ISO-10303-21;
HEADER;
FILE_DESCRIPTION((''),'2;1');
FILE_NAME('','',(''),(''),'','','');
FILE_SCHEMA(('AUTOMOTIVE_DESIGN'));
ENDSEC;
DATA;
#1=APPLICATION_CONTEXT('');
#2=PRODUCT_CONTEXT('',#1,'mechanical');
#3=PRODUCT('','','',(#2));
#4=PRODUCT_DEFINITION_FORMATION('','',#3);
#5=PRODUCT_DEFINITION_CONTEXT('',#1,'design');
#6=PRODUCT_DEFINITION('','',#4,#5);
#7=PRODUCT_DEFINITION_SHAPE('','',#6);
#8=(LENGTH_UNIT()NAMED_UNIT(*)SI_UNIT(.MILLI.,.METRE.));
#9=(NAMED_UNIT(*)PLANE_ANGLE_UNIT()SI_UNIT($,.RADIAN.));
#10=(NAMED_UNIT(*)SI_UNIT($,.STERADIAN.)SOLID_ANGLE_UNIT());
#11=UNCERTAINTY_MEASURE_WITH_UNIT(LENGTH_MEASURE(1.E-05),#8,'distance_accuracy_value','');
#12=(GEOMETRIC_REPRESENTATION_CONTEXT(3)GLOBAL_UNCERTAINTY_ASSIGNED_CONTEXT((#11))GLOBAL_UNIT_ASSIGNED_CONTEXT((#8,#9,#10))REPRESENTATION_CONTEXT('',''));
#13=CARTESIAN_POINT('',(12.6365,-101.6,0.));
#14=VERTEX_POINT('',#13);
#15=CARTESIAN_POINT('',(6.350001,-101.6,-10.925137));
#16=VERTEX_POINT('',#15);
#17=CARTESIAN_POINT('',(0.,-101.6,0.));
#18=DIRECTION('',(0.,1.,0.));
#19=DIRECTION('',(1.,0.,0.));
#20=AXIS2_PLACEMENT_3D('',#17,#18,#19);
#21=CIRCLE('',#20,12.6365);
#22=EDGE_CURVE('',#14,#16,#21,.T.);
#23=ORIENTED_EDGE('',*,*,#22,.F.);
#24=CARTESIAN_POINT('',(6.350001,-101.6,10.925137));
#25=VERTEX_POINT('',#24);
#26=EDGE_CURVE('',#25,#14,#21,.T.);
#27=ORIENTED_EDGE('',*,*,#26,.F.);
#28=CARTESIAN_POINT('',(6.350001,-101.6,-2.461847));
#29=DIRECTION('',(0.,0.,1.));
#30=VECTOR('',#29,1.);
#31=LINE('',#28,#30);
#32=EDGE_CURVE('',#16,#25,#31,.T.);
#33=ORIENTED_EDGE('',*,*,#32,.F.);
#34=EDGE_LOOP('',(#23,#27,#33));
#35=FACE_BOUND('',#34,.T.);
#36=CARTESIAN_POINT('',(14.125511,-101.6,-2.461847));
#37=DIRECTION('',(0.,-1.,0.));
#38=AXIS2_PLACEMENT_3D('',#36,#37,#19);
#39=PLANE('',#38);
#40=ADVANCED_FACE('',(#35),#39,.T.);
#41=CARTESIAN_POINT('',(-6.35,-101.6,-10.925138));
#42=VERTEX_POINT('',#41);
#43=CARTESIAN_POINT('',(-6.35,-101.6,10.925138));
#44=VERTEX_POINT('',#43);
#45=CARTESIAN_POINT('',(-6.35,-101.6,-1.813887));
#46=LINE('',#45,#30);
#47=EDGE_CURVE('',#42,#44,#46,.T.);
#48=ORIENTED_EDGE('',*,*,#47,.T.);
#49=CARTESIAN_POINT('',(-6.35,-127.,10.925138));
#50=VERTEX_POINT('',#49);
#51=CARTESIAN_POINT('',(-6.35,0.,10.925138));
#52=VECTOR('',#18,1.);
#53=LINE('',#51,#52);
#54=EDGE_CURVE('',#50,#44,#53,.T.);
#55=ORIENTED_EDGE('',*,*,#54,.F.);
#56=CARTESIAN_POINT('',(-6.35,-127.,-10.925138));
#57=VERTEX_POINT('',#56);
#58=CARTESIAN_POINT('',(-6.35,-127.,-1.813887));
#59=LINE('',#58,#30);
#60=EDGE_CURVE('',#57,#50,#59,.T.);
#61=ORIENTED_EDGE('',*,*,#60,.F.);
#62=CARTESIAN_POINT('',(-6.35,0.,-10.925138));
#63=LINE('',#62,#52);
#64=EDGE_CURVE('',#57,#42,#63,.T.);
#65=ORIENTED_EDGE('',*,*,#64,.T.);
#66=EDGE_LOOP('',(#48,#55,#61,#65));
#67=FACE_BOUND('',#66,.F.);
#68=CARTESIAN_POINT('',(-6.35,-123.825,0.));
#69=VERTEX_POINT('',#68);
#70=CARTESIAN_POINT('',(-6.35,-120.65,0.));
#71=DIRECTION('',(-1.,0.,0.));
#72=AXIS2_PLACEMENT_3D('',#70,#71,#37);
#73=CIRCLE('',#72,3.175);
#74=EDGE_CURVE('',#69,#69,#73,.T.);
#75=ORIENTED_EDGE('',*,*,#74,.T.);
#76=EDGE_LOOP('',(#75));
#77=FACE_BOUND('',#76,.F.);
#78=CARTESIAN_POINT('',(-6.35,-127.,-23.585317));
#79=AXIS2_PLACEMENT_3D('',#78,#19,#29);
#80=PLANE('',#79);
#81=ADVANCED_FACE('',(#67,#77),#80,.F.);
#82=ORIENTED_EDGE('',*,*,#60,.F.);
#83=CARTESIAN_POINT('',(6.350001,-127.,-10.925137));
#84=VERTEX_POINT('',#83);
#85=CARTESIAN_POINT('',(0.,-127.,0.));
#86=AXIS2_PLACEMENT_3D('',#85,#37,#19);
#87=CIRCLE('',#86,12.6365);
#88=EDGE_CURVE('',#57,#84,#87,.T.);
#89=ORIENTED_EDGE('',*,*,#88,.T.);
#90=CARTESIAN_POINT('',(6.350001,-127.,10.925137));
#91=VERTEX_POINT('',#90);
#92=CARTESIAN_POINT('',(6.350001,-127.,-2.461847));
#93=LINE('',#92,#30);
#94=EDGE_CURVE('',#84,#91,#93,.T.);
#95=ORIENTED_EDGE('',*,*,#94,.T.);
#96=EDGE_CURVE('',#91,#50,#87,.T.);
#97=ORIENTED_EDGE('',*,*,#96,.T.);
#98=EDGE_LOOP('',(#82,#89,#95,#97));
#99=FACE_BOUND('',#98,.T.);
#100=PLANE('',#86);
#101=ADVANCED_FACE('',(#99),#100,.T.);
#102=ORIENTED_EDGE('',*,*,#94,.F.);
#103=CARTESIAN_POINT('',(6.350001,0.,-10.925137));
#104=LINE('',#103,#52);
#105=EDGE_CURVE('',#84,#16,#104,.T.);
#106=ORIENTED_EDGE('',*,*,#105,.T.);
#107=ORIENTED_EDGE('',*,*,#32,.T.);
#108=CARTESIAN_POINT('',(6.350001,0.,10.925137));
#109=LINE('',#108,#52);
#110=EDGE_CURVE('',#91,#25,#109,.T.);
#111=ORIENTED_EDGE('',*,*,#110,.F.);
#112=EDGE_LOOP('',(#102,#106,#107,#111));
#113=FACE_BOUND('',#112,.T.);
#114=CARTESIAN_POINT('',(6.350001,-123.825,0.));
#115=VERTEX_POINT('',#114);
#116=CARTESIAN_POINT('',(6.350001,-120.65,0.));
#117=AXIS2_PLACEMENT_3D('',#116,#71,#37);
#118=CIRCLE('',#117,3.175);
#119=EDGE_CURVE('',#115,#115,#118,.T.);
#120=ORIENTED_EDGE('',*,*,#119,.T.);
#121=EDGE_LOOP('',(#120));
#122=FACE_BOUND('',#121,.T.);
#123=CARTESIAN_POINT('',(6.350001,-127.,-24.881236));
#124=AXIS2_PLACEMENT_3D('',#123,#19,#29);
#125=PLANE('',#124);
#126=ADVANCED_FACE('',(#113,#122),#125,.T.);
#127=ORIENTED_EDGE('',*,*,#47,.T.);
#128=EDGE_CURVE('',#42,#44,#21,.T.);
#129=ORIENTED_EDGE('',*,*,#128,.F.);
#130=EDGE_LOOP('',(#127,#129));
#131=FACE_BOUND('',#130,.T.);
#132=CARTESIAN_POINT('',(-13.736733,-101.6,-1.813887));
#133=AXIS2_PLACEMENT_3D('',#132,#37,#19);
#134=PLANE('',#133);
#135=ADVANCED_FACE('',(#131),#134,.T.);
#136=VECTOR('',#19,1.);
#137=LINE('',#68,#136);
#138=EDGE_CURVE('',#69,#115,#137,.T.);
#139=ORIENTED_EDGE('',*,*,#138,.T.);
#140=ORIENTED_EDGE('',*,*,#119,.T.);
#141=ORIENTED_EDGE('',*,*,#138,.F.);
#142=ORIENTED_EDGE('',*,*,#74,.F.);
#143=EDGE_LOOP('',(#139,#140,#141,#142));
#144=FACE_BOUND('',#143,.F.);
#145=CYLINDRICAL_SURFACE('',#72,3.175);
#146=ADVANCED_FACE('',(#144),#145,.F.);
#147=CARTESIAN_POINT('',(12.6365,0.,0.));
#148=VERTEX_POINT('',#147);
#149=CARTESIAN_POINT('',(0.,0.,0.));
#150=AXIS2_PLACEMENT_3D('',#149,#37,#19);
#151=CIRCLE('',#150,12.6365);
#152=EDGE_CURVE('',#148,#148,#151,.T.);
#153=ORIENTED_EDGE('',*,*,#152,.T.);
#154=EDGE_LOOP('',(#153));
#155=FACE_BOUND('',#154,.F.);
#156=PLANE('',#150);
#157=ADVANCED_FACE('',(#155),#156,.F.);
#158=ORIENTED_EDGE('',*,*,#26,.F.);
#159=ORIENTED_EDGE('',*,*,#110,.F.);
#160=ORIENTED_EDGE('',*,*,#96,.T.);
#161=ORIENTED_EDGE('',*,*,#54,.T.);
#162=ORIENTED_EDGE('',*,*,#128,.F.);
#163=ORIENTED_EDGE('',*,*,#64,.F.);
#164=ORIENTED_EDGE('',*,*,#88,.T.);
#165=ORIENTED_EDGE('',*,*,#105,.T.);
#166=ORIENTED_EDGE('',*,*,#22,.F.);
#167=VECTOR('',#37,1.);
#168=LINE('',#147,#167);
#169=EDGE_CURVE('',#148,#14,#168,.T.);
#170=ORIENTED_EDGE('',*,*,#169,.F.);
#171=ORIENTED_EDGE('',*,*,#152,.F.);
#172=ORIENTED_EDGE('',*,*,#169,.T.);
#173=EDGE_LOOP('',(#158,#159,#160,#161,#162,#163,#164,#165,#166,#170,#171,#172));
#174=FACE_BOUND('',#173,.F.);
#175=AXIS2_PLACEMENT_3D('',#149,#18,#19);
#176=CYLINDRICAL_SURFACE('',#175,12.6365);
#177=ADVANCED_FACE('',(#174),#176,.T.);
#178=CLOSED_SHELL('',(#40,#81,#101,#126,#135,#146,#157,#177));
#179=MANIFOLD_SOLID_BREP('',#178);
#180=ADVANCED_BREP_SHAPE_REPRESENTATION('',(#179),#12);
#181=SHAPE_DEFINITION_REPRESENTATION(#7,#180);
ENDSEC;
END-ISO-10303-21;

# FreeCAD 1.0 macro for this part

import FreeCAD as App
import Part
import Sketcher
from FreeCAD import Vector
Q = App.Units.Quantity

doc = App.newDocument("Part")
body = doc.addObject("PartDesign::Body", "Body")

# Sketch on XZ plane
sketch1 = body.newObject("Sketcher::SketchObject", "Sketch")
sketch1.AttachmentSupport = (doc.getObject("XZ_Plane"), [""])
sketch1.MapMode = "FlatFace"
sketch1.addGeometry(Part.Circle(Vector(0, 0, 0), Vector(0, 0, 1), 13), False)
sketch1.addConstraint(Sketcher.Constraint("Coincident", 0, 3, -1, 1))
sketch1.addConstraint(Sketcher.Constraint("Diameter", 0, Q("0.995 in")))
pad1 = body.newObject("PartDesign::Pad", "Pad")
pad1.Profile = sketch1
pad1.Length = Q("5 in")

# Sketch on XZ plane
sketch2 = body.newObject("Sketcher::SketchObject", "Sketch001")
sketch2.AttachmentSupport = (doc.getObject("XZ_Plane"), [""])
sketch2.MapMode = "FlatFace"
sketch2.AttachmentOffset = App.Placement(Vector(0, 0, 5 * 25.4), App.Rotation())
sketch2.addGeometry(Part.LineSegment(Vector(-21, 20, 0), Vector(-21, -24, 0)), False)
sketch2.addGeometry(Part.LineSegment(Vector(-21, -24, 0), Vector(-6, -24, 0)), False)
sketch2.addGeometry(Part.LineSegment(Vector(-6, -24, 0), Vector(-6, 20, 0)), False)
sketch2.addGeometry(Part.LineSegment(Vector(-6, 20, 0), Vector(-21, 20, 0)), False)
sketch2.addGeometry(Part.LineSegment(Vector(6, 20, 0), Vector(6, -25, 0)), False)
sketch2.addGeometry(Part.LineSegment(Vector(6, -25, 0), Vector(22, -25, 0)), False)
sketch2.addGeometry(Part.LineSegment(Vector(22, -25, 0), Vector(22, 20, 0)), False)
sketch2.addGeometry(Part.LineSegment(Vector(22, 20, 0), Vector(6, 20, 0)), False)
sketch2.addConstraint(Sketcher.Constraint("Coincident", 0, 2, 1, 1))
sketch2.addConstraint(Sketcher.Constraint("Coincident", 1, 2, 2, 1))
sketch2.addConstraint(Sketcher.Constraint("Coincident", 2, 2, 3, 1))
sketch2.addConstraint(Sketcher.Constraint("Coincident", 3, 2, 0, 1))
sketch2.addConstraint(Sketcher.Constraint("Coincident", 4, 2, 5, 1))
sketch2.addConstraint(Sketcher.Constraint("Coincident", 5, 2, 6, 1))
sketch2.addConstraint(Sketcher.Constraint("Coincident", 6, 2, 7, 1))
sketch2.addConstraint(Sketcher.Constraint("Coincident", 7, 2, 4, 1))
sketch2.addConstraint(Sketcher.Constraint("Vertical", 0))
sketch2.addConstraint(Sketcher.Constraint("Horizontal", 1))
sketch2.addConstraint(Sketcher.Constraint("Vertical", 2))
sketch2.addConstraint(Sketcher.Constraint("Horizontal", 3))
sketch2.addConstraint(Sketcher.Constraint("Vertical", 4))
sketch2.addConstraint(Sketcher.Constraint("Horizontal", 5))
sketch2.addConstraint(Sketcher.Constraint("Vertical", 6))
sketch2.addConstraint(Sketcher.Constraint("Horizontal", 7))
sketch2.addConstraint(Sketcher.Constraint("Symmetric", 2, 2, 7, 2, -2))
sketch2.addConstraint(Sketcher.Constraint("DistanceX", 1, 2, 4, 2, Q("0.5 in")))
sketch2.addConstraint(Sketcher.Constraint("DistanceX", 5, 1, 5, 2, 15.551021))
sketch2.addConstraint(Sketcher.Constraint("DistanceY", 0, 2, 0, 1, 43.54286))
sketch2.addConstraint(Sketcher.Constraint("DistanceY", 4, 2, 4, 1, 44.838779))
sketch2.addConstraint(Sketcher.Constraint("DistanceX", 1, 1, 1, 2, 14.773466))
sketch2.addConstraint(Sketcher.Constraint("DistanceY", 0, 2, -1, 1, 23.585317))
pocket1 = body.newObject("PartDesign::Pocket", "Pocket")
pocket1.Profile = sketch2
pocket1.Length = Q("1 in")

# Sketch on YZ plane
sketch3 = body.newObject("Sketcher::SketchObject", "Sketch002")
sketch3.AttachmentSupport = (doc.getObject("YZ_Plane"), [""])
sketch3.MapMode = "FlatFace"
sketch3.AttachmentOffset = App.Placement(Vector(0, 0, -0.25 * 25.4), App.Rotation())
sketch3.addGeometry(Part.Circle(Vector(-120.7, 0, 0), Vector(0, 0, 1), 3.2), False)
sketch3.addConstraint(Sketcher.Constraint("PointOnObject", 0, 3, -1))
sketch3.addConstraint(Sketcher.Constraint("Diameter", 0, Q("0.25 in")))
sketch3.addConstraint(Sketcher.Constraint("DistanceX", 0, 3, -1, 1, Q("4.75 in")))
pocket2 = body.newObject("PartDesign::Pocket", "Pocket001")
pocket2.Profile = sketch3
pocket2.Length = Q("1 in")
pocket2.Reversed = True

doc.recompute()
